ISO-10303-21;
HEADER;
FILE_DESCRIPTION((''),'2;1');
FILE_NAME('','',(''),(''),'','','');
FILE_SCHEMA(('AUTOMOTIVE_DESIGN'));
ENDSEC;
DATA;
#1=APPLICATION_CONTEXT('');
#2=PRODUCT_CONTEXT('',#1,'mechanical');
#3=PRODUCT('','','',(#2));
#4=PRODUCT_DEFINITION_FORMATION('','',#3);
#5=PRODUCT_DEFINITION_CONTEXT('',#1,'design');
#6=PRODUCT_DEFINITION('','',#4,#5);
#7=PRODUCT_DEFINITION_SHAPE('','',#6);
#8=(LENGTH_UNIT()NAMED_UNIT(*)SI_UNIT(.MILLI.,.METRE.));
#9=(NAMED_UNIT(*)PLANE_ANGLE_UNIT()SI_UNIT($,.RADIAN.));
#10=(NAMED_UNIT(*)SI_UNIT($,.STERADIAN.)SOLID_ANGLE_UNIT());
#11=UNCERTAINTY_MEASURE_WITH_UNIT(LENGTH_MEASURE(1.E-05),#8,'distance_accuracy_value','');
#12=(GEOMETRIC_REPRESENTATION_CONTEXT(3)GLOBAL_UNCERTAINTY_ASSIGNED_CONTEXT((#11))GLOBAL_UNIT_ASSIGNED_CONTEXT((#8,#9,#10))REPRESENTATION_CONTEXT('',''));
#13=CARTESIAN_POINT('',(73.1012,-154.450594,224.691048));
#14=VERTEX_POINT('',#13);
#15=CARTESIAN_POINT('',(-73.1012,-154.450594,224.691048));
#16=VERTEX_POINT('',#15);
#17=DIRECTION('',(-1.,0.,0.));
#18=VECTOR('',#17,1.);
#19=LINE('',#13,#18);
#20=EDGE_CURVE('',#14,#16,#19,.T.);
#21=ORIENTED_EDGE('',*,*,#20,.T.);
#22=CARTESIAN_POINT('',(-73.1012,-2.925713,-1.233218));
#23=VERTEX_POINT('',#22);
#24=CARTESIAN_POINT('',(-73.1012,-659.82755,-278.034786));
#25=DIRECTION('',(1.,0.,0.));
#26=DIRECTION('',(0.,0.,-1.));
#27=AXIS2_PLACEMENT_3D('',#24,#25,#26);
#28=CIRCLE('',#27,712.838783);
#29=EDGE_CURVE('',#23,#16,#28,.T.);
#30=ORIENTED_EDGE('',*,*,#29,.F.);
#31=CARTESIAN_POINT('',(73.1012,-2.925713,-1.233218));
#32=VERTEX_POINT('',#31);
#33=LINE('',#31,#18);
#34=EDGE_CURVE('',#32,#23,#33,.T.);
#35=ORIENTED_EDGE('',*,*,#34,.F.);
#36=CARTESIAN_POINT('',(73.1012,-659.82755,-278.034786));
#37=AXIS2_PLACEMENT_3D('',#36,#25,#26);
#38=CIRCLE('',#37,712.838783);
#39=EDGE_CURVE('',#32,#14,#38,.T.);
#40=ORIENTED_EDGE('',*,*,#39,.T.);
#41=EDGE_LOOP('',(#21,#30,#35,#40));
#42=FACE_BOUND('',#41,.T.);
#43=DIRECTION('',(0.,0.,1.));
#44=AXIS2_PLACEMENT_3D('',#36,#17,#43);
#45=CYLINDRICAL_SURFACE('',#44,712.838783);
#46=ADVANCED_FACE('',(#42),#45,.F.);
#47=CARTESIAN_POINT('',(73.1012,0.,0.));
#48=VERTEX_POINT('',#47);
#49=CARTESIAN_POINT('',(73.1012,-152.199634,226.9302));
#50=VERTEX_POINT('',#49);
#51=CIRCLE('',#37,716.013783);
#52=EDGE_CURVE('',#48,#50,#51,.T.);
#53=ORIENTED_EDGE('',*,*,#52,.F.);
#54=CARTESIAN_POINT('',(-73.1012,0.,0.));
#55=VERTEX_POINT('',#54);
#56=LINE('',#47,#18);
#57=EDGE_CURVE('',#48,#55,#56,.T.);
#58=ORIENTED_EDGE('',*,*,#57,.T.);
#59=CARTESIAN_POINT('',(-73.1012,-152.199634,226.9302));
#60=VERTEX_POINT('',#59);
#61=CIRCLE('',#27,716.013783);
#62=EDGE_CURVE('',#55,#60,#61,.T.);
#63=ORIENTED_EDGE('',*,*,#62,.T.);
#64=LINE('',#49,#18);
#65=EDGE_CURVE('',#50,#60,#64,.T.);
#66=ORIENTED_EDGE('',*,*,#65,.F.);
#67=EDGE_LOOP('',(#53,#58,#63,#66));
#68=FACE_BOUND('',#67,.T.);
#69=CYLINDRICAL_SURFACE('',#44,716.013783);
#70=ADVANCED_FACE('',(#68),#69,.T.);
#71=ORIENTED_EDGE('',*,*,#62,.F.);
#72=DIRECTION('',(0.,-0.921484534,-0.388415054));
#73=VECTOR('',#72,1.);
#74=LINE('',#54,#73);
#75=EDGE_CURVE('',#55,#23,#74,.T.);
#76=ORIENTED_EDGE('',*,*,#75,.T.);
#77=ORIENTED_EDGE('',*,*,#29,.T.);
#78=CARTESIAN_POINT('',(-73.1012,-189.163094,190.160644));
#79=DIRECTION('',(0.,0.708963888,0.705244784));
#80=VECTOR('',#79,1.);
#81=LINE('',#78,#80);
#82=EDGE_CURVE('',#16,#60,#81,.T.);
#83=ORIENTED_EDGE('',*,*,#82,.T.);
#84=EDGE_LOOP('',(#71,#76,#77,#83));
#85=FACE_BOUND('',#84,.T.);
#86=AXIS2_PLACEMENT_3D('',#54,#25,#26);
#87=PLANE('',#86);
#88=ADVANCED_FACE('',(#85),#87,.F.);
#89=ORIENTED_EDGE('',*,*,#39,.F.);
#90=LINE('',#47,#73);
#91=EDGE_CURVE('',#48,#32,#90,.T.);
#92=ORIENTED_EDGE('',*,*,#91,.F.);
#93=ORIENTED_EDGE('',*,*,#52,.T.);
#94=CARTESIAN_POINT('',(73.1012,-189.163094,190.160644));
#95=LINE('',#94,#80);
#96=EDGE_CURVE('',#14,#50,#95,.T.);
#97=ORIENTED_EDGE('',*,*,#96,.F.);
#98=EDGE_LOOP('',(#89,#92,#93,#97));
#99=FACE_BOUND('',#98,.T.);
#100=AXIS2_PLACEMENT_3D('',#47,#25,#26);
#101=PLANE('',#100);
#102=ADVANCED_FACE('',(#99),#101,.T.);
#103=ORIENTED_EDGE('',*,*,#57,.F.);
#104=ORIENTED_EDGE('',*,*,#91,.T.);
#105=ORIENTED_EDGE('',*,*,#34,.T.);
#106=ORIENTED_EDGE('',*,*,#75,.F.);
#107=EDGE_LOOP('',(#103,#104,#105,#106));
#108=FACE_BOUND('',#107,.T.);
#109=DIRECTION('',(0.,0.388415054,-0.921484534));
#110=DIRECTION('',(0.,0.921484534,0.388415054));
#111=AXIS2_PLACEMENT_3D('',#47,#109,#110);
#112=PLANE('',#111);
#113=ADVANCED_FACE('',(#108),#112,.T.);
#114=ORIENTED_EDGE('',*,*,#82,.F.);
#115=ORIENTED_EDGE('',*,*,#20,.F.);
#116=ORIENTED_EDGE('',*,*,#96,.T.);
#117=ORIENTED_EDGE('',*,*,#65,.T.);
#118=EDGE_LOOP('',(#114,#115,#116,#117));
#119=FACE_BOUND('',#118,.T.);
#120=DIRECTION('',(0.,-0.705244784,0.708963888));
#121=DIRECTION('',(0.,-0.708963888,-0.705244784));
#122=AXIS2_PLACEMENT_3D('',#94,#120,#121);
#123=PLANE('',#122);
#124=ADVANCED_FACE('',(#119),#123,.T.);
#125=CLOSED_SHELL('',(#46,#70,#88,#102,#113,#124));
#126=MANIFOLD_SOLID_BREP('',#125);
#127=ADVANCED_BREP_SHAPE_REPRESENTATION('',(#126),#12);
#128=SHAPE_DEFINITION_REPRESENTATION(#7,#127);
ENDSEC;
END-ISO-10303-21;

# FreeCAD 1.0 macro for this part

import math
import FreeCAD as App
import Part
import Sketcher
Q = App.Units.Quantity

doc = App.newDocument("Part")
body = doc.addObject("PartDesign::Body", "Body")

# Sketch on YZ plane
sketch1 = doc.addObject("Sketcher::SketchObject", "Sketch")
body.addObject(sketch1)
sketch1.AttachmentSupport = (doc.YZ_Plane, [""])
sketch1.MapMode = "FlatFace"
sketch1.addGeometry(Part.LineSegment(App.Vector(-153.3, 225.8, 0), App.Vector(-154.5, 224.7, 0)), False)
sketch1.addGeometry(Part.ArcOfCircle(Part.Circle(App.Vector(-659.8, -278, 0), App.Vector(0, 0, 1), 712.8), math.radians(23), math.radians(45)), False)
sketch1.addGeometry(Part.LineSegment(App.Vector(-2.9, -1.2, 0), App.Vector(0, 0, 0)), False)
sketch1.addGeometry(Part.ArcOfCircle(Part.Circle(App.Vector(-659.8, -278, 0), App.Vector(0, 0, 1), 716), math.radians(23), math.radians(45)), False)
sketch1.addGeometry(Part.LineSegment(App.Vector(-152.2, 226.9, 0), App.Vector(-153.3, 225.8, 0)), False)
sketch1.addConstraint(Sketcher.Constraint("Coincident", 0, 2, 1, 2))
sketch1.addConstraint(Sketcher.Constraint("Coincident", 1, 1, 2, 1))
sketch1.addConstraint(Sketcher.Constraint("Coincident", 2, 2, 3, 1))
sketch1.addConstraint(Sketcher.Constraint("Coincident", 3, 2, 4, 1))
sketch1.addConstraint(Sketcher.Constraint("Coincident", 4, 2, 0, 1))
sketch1.addConstraint(Sketcher.Constraint("Coincident", 2, 2, -1, 1))
sketch1.addConstraint(Sketcher.Constraint("Coincident", 3, 3, 1, 3))
sketch1.addConstraint(Sketcher.Constraint("Parallel", 0, 4))
sketch1.addConstraint(Sketcher.Constraint("Equal", 0, 4))
sketch1.addConstraint(Sketcher.Constraint("Distance", 0, Q("0.0625 in")))
sketch1.addConstraint(Sketcher.Constraint("Radius", 1, Q("712.838783 mm")))
sketch1.addConstraint(Sketcher.Constraint("DistanceX", 1, 3, -1, 1, Q("659.82755 mm")))
sketch1.addConstraint(Sketcher.Constraint("DistanceX", 0, 2, 1, 1, Q("151.524881 mm")))
sketch1.addConstraint(Sketcher.Constraint("DistanceX", 0, 2, 4, 2, Q("1.12548 mm")))
sketch1.addConstraint(Sketcher.Constraint("DistanceY", 1, 3, 4, 2, Q("503.84541 mm")))
pad1 = doc.addObject("PartDesign::Pad", "Pad")
body.addObject(pad1)
pad1.Profile = sketch1
pad1.Length = Q("5.756 in")
pad1.Midplane = True

doc.recompute()
